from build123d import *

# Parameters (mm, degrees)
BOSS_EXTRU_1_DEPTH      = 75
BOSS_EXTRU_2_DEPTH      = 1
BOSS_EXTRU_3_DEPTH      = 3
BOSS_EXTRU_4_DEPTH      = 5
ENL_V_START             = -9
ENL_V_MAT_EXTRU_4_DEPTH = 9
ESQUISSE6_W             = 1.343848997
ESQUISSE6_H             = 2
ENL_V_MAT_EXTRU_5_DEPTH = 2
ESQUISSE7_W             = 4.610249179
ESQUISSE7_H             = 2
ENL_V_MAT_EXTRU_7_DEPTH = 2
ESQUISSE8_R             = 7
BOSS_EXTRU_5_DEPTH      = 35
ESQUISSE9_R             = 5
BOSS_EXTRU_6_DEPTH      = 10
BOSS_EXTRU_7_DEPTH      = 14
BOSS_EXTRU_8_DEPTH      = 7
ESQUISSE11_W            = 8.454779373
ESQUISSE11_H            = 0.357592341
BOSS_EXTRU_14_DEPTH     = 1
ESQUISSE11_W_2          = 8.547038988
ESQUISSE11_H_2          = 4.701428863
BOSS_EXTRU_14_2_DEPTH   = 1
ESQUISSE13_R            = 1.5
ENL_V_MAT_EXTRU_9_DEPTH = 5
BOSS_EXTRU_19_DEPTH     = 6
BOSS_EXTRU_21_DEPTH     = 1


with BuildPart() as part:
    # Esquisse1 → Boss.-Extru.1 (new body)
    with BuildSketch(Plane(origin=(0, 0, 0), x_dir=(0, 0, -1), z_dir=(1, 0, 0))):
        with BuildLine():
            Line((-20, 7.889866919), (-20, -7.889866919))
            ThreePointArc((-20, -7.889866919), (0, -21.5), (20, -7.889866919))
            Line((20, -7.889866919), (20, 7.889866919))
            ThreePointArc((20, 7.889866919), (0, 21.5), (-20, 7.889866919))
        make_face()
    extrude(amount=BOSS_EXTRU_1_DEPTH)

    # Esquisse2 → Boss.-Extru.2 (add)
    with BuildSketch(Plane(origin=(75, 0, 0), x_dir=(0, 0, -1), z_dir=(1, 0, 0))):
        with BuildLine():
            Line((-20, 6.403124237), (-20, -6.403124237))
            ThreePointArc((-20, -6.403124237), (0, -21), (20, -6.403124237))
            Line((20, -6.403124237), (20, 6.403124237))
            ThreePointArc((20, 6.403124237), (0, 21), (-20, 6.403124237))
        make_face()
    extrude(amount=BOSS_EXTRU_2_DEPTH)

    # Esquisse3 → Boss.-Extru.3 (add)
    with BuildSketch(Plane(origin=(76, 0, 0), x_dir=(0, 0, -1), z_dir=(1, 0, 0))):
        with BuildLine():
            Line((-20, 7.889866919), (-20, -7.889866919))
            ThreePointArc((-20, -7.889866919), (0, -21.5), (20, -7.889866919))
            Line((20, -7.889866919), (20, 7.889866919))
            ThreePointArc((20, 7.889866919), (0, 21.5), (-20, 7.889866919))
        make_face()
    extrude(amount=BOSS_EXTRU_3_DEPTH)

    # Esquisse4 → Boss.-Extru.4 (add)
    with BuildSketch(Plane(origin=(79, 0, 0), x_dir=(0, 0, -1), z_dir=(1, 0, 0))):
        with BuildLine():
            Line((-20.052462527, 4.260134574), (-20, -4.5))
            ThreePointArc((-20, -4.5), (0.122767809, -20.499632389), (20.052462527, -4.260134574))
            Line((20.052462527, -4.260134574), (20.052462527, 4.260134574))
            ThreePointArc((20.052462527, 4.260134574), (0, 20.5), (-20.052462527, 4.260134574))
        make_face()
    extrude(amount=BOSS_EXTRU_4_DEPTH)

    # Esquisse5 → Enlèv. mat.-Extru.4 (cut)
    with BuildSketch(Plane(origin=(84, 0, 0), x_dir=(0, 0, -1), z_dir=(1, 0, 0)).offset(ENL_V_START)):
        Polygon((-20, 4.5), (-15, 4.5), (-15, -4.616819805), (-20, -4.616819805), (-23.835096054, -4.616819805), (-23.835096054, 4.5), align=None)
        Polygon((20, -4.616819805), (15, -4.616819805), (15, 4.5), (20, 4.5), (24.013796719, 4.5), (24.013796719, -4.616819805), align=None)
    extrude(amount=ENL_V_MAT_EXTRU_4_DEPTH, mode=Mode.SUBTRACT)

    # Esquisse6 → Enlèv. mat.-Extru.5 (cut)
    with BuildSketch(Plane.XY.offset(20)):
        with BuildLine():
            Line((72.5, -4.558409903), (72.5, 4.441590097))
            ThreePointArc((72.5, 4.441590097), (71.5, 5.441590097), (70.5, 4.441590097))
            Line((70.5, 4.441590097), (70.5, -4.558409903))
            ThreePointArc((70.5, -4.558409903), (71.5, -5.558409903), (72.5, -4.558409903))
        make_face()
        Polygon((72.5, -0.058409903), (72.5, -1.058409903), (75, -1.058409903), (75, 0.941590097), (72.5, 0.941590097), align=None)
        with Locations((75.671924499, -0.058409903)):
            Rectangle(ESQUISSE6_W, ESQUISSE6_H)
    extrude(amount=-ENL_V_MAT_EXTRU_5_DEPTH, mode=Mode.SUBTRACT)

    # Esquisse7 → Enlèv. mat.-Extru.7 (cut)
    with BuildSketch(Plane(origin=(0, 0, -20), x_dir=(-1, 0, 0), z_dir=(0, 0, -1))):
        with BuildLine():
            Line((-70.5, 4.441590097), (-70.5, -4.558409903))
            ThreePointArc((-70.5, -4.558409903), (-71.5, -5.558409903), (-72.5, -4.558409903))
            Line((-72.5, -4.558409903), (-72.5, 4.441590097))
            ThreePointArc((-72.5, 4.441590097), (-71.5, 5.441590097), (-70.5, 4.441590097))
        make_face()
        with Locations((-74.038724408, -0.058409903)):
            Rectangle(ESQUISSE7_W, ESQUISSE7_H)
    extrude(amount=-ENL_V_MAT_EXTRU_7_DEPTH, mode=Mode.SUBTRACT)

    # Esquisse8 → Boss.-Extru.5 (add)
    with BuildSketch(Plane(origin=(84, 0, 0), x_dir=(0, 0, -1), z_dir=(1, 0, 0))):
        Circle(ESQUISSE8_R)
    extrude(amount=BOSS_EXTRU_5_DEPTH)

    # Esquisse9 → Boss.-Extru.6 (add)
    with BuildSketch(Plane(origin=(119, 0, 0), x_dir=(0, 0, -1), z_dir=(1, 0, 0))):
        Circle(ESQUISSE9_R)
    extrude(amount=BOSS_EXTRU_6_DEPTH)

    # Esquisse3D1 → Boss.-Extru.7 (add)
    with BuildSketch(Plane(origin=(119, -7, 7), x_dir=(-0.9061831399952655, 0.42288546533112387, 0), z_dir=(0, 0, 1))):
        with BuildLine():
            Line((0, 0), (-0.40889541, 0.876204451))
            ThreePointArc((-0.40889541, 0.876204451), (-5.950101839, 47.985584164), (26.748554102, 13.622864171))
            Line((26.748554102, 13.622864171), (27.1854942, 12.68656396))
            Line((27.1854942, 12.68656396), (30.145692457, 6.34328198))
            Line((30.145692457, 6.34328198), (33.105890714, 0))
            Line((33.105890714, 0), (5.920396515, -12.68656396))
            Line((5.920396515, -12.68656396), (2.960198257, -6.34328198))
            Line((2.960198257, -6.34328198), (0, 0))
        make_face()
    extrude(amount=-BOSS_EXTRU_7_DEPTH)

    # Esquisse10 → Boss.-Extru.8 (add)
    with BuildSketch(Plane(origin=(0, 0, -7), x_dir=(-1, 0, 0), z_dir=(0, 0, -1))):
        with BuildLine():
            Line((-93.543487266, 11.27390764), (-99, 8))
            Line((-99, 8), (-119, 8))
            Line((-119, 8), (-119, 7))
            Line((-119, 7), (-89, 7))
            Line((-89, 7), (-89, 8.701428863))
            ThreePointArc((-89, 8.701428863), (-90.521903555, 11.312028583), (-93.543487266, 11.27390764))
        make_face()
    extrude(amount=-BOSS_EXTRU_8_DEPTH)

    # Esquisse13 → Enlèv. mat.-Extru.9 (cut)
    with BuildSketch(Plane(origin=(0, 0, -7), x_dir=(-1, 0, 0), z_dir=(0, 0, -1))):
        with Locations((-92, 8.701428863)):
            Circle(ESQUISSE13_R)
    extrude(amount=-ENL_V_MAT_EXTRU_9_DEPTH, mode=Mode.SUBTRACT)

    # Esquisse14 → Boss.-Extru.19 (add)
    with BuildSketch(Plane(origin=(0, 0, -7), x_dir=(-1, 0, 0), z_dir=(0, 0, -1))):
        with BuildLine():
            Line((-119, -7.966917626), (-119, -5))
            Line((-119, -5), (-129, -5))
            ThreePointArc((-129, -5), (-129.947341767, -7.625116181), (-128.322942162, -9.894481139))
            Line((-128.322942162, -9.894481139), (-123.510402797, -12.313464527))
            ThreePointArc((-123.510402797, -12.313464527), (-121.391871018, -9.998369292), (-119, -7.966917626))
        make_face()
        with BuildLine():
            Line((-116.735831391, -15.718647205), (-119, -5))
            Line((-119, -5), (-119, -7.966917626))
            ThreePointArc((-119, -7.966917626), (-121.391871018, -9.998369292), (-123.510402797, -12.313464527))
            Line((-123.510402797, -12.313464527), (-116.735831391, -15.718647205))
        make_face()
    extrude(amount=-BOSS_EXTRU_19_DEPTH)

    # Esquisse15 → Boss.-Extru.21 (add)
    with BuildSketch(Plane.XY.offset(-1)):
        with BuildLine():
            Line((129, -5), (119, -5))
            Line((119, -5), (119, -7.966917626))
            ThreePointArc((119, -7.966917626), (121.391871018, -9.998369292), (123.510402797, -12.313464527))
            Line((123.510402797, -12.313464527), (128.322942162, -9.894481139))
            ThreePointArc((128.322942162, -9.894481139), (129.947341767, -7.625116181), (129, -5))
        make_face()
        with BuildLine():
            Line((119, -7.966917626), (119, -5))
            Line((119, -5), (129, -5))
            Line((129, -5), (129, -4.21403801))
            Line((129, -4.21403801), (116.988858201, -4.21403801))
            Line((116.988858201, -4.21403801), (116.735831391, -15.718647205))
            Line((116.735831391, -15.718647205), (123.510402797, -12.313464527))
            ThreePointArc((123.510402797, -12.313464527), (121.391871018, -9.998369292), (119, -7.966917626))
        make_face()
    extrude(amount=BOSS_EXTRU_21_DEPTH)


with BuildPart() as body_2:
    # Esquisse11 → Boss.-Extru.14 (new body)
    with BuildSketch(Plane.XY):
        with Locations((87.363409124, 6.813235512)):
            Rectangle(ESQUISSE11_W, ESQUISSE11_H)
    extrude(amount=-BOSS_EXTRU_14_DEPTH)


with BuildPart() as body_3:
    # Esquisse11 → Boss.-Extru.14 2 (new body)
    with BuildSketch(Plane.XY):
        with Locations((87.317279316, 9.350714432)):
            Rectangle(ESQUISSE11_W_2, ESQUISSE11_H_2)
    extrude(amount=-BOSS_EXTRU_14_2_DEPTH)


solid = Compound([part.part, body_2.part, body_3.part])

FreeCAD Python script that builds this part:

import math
import FreeCAD as App
import Part
import Sketcher
Q = App.Units.Quantity


def add_polygon(sketch, points):
    """Adds a closed chain of lines whose ends are joined by coincident constraints."""
    first, n = sketch.GeometryCount, len(points)
    for a, b in zip(points, points[1:] + points[:1]):
        sketch.addGeometry(Part.LineSegment(App.Vector(*a, 0), App.Vector(*b, 0)), False)
    for i in range(n):
        sketch.addConstraint(Sketcher.Constraint("Coincident", first + i, 2, first + (i + 1) % n, 1))

doc = App.newDocument("Part")
body = doc.addObject("PartDesign::Body", "Body")

sketch1 = doc.addObject("Sketcher::SketchObject", "Sketch")
body.addObject(sketch1)
sketch1.AttachmentSupport = (doc.YZ_Plane, [""])
sketch1.MapMode = "FlatFace"
sketch1.addGeometry(Part.LineSegment(App.Vector(8, 20, 0), App.Vector(-8, 20, 0)), False)
sketch1.addGeometry(Part.ArcOfCircle(Part.Circle(App.Vector(0, 0, 0), App.Vector(0, 0, 1), 22), math.radians(112), math.radians(248)), False)
sketch1.addGeometry(Part.LineSegment(App.Vector(-8, -20, 0), App.Vector(8, -20, 0)), False)
sketch1.addGeometry(Part.ArcOfCircle(Part.Circle(App.Vector(0, 0, 0), App.Vector(0, 0, 1), 22), math.radians(-68), math.radians(68)), False)
sketch1.addConstraint(Sketcher.Constraint("Coincident", 0, 2, 1, 1))
sketch1.addConstraint(Sketcher.Constraint("Coincident", 1, 2, 2, 1))
sketch1.addConstraint(Sketcher.Constraint("Coincident", 2, 2, 3, 1))
sketch1.addConstraint(Sketcher.Constraint("Coincident", 3, 2, 0, 1))
sketch1.addConstraint(Sketcher.Constraint("Horizontal", 0))
sketch1.addConstraint(Sketcher.Constraint("Horizontal", 2))
sketch1.addConstraint(Sketcher.Constraint("Coincident", 1, 3, -1, 1))
sketch1.addConstraint(Sketcher.Constraint("Coincident", 3, 3, -1, 1))
sketch1.addConstraint(Sketcher.Constraint("Equal", 1, 3))
sketch1.addConstraint(Sketcher.Constraint("Vertical", 0, 2, 1, 2))
sketch1.addConstraint(Sketcher.Constraint("Radius", 1, Q("21.5 mm")))
sketch1.addConstraint(Sketcher.Constraint("DistanceY", -1, 1, 0, 2, Q("20 mm")))
pad1 = doc.addObject("PartDesign::Pad", "Pad")
body.addObject(pad1)
pad1.Profile = sketch1
pad1.Length = 75

sketch2 = doc.addObject("Sketcher::SketchObject", "Sketch001")
body.addObject(sketch2)
sketch2.AttachmentSupport = (doc.YZ_Plane, [""])
sketch2.MapMode = "FlatFace"
sketch2.AttachmentOffset = App.Placement(App.Vector(0, 0, 75), App.Rotation())
sketch2.addGeometry(Part.LineSegment(App.Vector(6, 20, 0), App.Vector(-6, 20, 0)), False)
sketch2.addGeometry(Part.ArcOfCircle(Part.Circle(App.Vector(0, 0, 0), App.Vector(0, 0, 1), 21), math.radians(108), math.radians(252)), False)
sketch2.addGeometry(Part.LineSegment(App.Vector(-6, -20, 0), App.Vector(6, -20, 0)), False)
sketch2.addGeometry(Part.ArcOfCircle(Part.Circle(App.Vector(0, 0, 0), App.Vector(0, 0, 1), 21), math.radians(-72), math.radians(72)), False)
sketch2.addConstraint(Sketcher.Constraint("Coincident", 0, 2, 1, 1))
sketch2.addConstraint(Sketcher.Constraint("Coincident", 1, 2, 2, 1))
sketch2.addConstraint(Sketcher.Constraint("Coincident", 2, 2, 3, 1))
sketch2.addConstraint(Sketcher.Constraint("Coincident", 3, 2, 0, 1))
sketch2.addConstraint(Sketcher.Constraint("Horizontal", 0))
sketch2.addConstraint(Sketcher.Constraint("Horizontal", 2))
sketch2.addConstraint(Sketcher.Constraint("Coincident", 1, 3, -1, 1))
sketch2.addConstraint(Sketcher.Constraint("Coincident", 3, 3, -1, 1))
sketch2.addConstraint(Sketcher.Constraint("Equal", 1, 3))
sketch2.addConstraint(Sketcher.Constraint("Vertical", 0, 2, 1, 2))
sketch2.addConstraint(Sketcher.Constraint("Radius", 1, Q("21 mm")))
sketch2.addConstraint(Sketcher.Constraint("DistanceY", -1, 1, 0, 2, Q("20 mm")))
pad2 = doc.addObject("PartDesign::Pad", "Pad001")
body.addObject(pad2)
pad2.Profile = sketch2
pad2.Length = 1

sketch3 = doc.addObject("Sketcher::SketchObject", "Sketch002")
body.addObject(sketch3)
sketch3.AttachmentSupport = (doc.YZ_Plane, [""])
sketch3.MapMode = "FlatFace"
sketch3.AttachmentOffset = App.Placement(App.Vector(0, 0, 76), App.Rotation())
sketch3.addGeometry(Part.LineSegment(App.Vector(8, 20, 0), App.Vector(-8, 20, 0)), False)
sketch3.addGeometry(Part.ArcOfCircle(Part.Circle(App.Vector(0, 0, 0), App.Vector(0, 0, 1), 22), math.radians(112), math.radians(248)), False)
sketch3.addGeometry(Part.LineSegment(App.Vector(-8, -20, 0), App.Vector(8, -20, 0)), False)
sketch3.addGeometry(Part.ArcOfCircle(Part.Circle(App.Vector(0, 0, 0), App.Vector(0, 0, 1), 22), math.radians(-68), math.radians(68)), False)
sketch3.addConstraint(Sketcher.Constraint("Coincident", 0, 2, 1, 1))
sketch3.addConstraint(Sketcher.Constraint("Coincident", 1, 2, 2, 1))
sketch3.addConstraint(Sketcher.Constraint("Coincident", 2, 2, 3, 1))
sketch3.addConstraint(Sketcher.Constraint("Coincident", 3, 2, 0, 1))
sketch3.addConstraint(Sketcher.Constraint("Horizontal", 0))
sketch3.addConstraint(Sketcher.Constraint("Horizontal", 2))
sketch3.addConstraint(Sketcher.Constraint("Coincident", 1, 3, -1, 1))
sketch3.addConstraint(Sketcher.Constraint("Coincident", 3, 3, -1, 1))
sketch3.addConstraint(Sketcher.Constraint("Equal", 1, 3))
sketch3.addConstraint(Sketcher.Constraint("Vertical", 0, 2, 1, 2))
sketch3.addConstraint(Sketcher.Constraint("Radius", 1, Q("21.5 mm")))
sketch3.addConstraint(Sketcher.Constraint("DistanceY", -1, 1, 0, 2, Q("20 mm")))
pad3 = doc.addObject("PartDesign::Pad", "Pad002")
body.addObject(pad3)
pad3.Profile = sketch3
pad3.Length = 3

sketch4 = doc.addObject("Sketcher::SketchObject", "Sketch003")
body.addObject(sketch4)
sketch4.AttachmentSupport = (doc.YZ_Plane, [""])
sketch4.MapMode = "FlatFace"
sketch4.AttachmentOffset = App.Placement(App.Vector(0, 0, 79), App.Rotation())
sketch4.addGeometry(Part.LineSegment(App.Vector(4, 20, 0), App.Vector(-4, 20, 0)), False)
sketch4.addGeometry(Part.ArcOfCircle(Part.Circle(App.Vector(0, 0, 0), App.Vector(0, 0, 1), 20), math.radians(103), math.radians(258)), False)
sketch4.addGeometry(Part.LineSegment(App.Vector(-4, -20, 0), App.Vector(4, -20, 0)), False)
sketch4.addGeometry(Part.ArcOfCircle(Part.Circle(App.Vector(0, 0, 0), App.Vector(0, 0, 1), 20), math.radians(-78), math.radians(78)), False)
sketch4.addConstraint(Sketcher.Constraint("Coincident", 0, 2, 1, 1))
sketch4.addConstraint(Sketcher.Constraint("Coincident", 1, 2, 2, 1))
sketch4.addConstraint(Sketcher.Constraint("Coincident", 2, 2, 3, 1))
sketch4.addConstraint(Sketcher.Constraint("Coincident", 3, 2, 0, 1))
sketch4.addConstraint(Sketcher.Constraint("Horizontal", 2))
sketch4.addConstraint(Sketcher.Constraint("Coincident", 1, 3, -1, 1))
sketch4.addConstraint(Sketcher.Constraint("Coincident", 3, 3, -1, 1))
sketch4.addConstraint(Sketcher.Constraint("Equal", 1, 3))
sketch4.addConstraint(Sketcher.Constraint("Vertical", 2, 2, 3, 2))
sketch4.addConstraint(Sketcher.Constraint("Radius", 1, Q("20.5 mm")))
sketch4.addConstraint(Sketcher.Constraint("DistanceY", -1, 1, 0, 2, Q("20 mm")))
sketch4.addConstraint(Sketcher.Constraint("DistanceX", 2, 1, 2, 2, Q("8.520269 mm")))
pad4 = doc.addObject("PartDesign::Pad", "Pad003")
body.addObject(pad4)
pad4.Profile = sketch4
pad4.Length = 5

sketch5 = doc.addObject("Sketcher::SketchObject", "Sketch004")
body.addObject(sketch5)
sketch5.AttachmentSupport = (doc.YZ_Plane, [""])
sketch5.MapMode = "FlatFace"
sketch5.AttachmentOffset = App.Placement(App.Vector(0, 0, 75), App.Rotation())
add_polygon(sketch5, [(4, 15), (4, 24), (-5, 24), (-5, 15)])
add_polygon(sketch5, [(-5, -15), (-5, -24), (4, -24), (4, -15)])
sketch5.addConstraint(Sketcher.Constraint("Vertical", 0))
sketch5.addConstraint(Sketcher.Constraint("Horizontal", 1))
sketch5.addConstraint(Sketcher.Constraint("Vertical", 2))
sketch5.addConstraint(Sketcher.Constraint("Horizontal", 3))
sketch5.addConstraint(Sketcher.Constraint("Vertical", 4))
sketch5.addConstraint(Sketcher.Constraint("Horizontal", 5))
sketch5.addConstraint(Sketcher.Constraint("Vertical", 6))
sketch5.addConstraint(Sketcher.Constraint("Horizontal", 7))
sketch5.addConstraint(Sketcher.Constraint("Symmetric", 3, 2, 6, 2, -1))
sketch5.addConstraint(Sketcher.Constraint("Vertical", 2, 2, 4, 2))
sketch5.addConstraint(Sketcher.Constraint("DistanceY", -1, 1, 2, 2, Q("15 mm")))
sketch5.addConstraint(Sketcher.Constraint("DistanceX", -1, 1, 0, 2, Q("4.5 mm")))
sketch5.addConstraint(Sketcher.Constraint("DistanceX", 1, 2, 1, 1, Q("9.11682 mm")))
sketch5.addConstraint(Sketcher.Constraint("DistanceY", 0, 1, 0, 2, Q("8.835096 mm")))
sketch5.addConstraint(Sketcher.Constraint("DistanceY", 4, 2, 4, 1, Q("9.013797 mm")))
pocket1 = doc.addObject("PartDesign::Pocket", "Pocket")
body.addObject(pocket1)
pocket1.Profile = sketch5
pocket1.Length = 9
pocket1.Reversed = True

sketch6 = doc.addObject("Sketcher::SketchObject", "Sketch005")
body.addObject(sketch6)
sketch6.AttachmentSupport = (doc.XY_Plane, [""])
sketch6.MapMode = "FlatFace"
sketch6.AttachmentOffset = App.Placement(App.Vector(0, 0, 20), App.Rotation())
sketch6.addGeometry(Part.LineSegment(App.Vector(72.5, -4.6, 0), App.Vector(72.5, -1.1, 0)), False)
sketch6.addGeometry(Part.LineSegment(App.Vector(72.5, -1.1, 0), App.Vector(76.3, -1.1, 0)), False)
sketch6.addGeometry(Part.LineSegment(App.Vector(76.3, -1.1, 0), App.Vector(76.3, 0.9, 0)), False)
sketch6.addGeometry(Part.LineSegment(App.Vector(76.3, 0.9, 0), App.Vector(72.5, 0.9, 0)), False)
sketch6.addGeometry(Part.LineSegment(App.Vector(72.5, 0.9, 0), App.Vector(72.5, 4.4, 0)), False)
sketch6.addGeometry(Part.ArcOfCircle(Part.Circle(App.Vector(71.5, 4.4, 0), App.Vector(0, 0, 1), 1), math.radians(0), math.radians(180)), False)
sketch6.addGeometry(Part.LineSegment(App.Vector(70.5, 4.4, 0), App.Vector(70.5, -4.6, 0)), False)
sketch6.addGeometry(Part.ArcOfCircle(Part.Circle(App.Vector(71.5, -4.6, 0), App.Vector(0, 0, 1), 1), math.radians(180), math.radians(360)), False)
sketch6.addConstraint(Sketcher.Constraint("Coincident", 0, 2, 1, 1))
sketch6.addConstraint(Sketcher.Constraint("Coincident", 1, 2, 2, 1))
sketch6.addConstraint(Sketcher.Constraint("Coincident", 2, 2, 3, 1))
sketch6.addConstraint(Sketcher.Constraint("Coincident", 3, 2, 4, 1))
sketch6.addConstraint(Sketcher.Constraint("Tangent", 4, 2, 5, 1))
sketch6.addConstraint(Sketcher.Constraint("Tangent", 5, 2, 6, 1))
sketch6.addConstraint(Sketcher.Constraint("Tangent", 6, 2, 7, 1))
sketch6.addConstraint(Sketcher.Constraint("Tangent", 7, 2, 0, 1))
sketch6.addConstraint(Sketcher.Constraint("Vertical", 0))
sketch6.addConstraint(Sketcher.Constraint("Horizontal", 1))
sketch6.addConstraint(Sketcher.Constraint("Vertical", 2))
sketch6.addConstraint(Sketcher.Constraint("Horizontal", 3))
sketch6.addConstraint(Sketcher.Constraint("Vertical", 4))
sketch6.addConstraint(Sketcher.Constraint("Vertical", 6))
sketch6.addConstraint(Sketcher.Constraint("Equal", 5, 7))
sketch6.addConstraint(Sketcher.Constraint("Equal", 0, 4))
sketch6.addConstraint(Sketcher.Constraint("Radius", 5, Q("1 mm")))
sketch6.addConstraint(Sketcher.Constraint("DistanceY", 2, 1, 2, 2, Q("2 mm")))
sketch6.addConstraint(Sketcher.Constraint("DistanceY", 6, 2, 6, 1, Q("9 mm")))
sketch6.addConstraint(Sketcher.Constraint("DistanceX", -1, 1, 5, 3, Q("71.5 mm")))
sketch6.addConstraint(Sketcher.Constraint("DistanceX", 1, 1, 1, 2, Q("3.843849 mm")))
sketch6.addConstraint(Sketcher.Constraint("DistanceY", -1, 1, 5, 3, Q("4.44159 mm")))
pocket2 = doc.addObject("PartDesign::Pocket", "Pocket001")
body.addObject(pocket2)
pocket2.Profile = sketch6
pocket2.Length = 2

sketch7 = doc.addObject("Sketcher::SketchObject", "Sketch006")
body.addObject(sketch7)
sketch7.AttachmentSupport = (doc.XY_Plane, [""])
sketch7.MapMode = "FlatFace"
sketch7.AttachmentOffset = App.Placement(App.Vector(0, 0, -20), App.Rotation())
sketch7.addGeometry(Part.ArcOfCircle(Part.Circle(App.Vector(71.5, 4.4, 0), App.Vector(0, 0, 1), 1), math.radians(0), math.radians(180)), False)
sketch7.addGeometry(Part.LineSegment(App.Vector(72.5, 4.4, 0), App.Vector(72.5, 0.9, 0)), False)
sketch7.addGeometry(Part.LineSegment(App.Vector(72.5, 0.9, 0), App.Vector(76.3, 0.9, 0)), False)
sketch7.addGeometry(Part.LineSegment(App.Vector(76.3, 0.9, 0), App.Vector(76.3, -1.1, 0)), False)
sketch7.addGeometry(Part.LineSegment(App.Vector(76.3, -1.1, 0), App.Vector(72.5, -1.1, 0)), False)
sketch7.addGeometry(Part.LineSegment(App.Vector(72.5, -1.1, 0), App.Vector(72.5, -4.6, 0)), False)
sketch7.addGeometry(Part.ArcOfCircle(Part.Circle(App.Vector(71.5, -4.6, 0), App.Vector(0, 0, 1), 1), math.radians(180), math.radians(360)), False)
sketch7.addGeometry(Part.LineSegment(App.Vector(70.5, -4.6, 0), App.Vector(70.5, 4.4, 0)), False)
sketch7.addConstraint(Sketcher.Constraint("Tangent", 0, 1, 1, 1))
sketch7.addConstraint(Sketcher.Constraint("Coincident", 1, 2, 2, 1))
sketch7.addConstraint(Sketcher.Constraint("Coincident", 2, 2, 3, 1))
sketch7.addConstraint(Sketcher.Constraint("Coincident", 3, 2, 4, 1))
sketch7.addConstraint(Sketcher.Constraint("Coincident", 4, 2, 5, 1))
sketch7.addConstraint(Sketcher.Constraint("Tangent", 5, 2, 6, 2))
sketch7.addConstraint(Sketcher.Constraint("Tangent", 6, 1, 7, 1))
sketch7.addConstraint(Sketcher.Constraint("Tangent", 7, 2, 0, 2))
sketch7.addConstraint(Sketcher.Constraint("Vertical", 1))
sketch7.addConstraint(Sketcher.Constraint("Horizontal", 2))
sketch7.addConstraint(Sketcher.Constraint("Vertical", 3))
sketch7.addConstraint(Sketcher.Constraint("Horizontal", 4))
sketch7.addConstraint(Sketcher.Constraint("Vertical", 5))
sketch7.addConstraint(Sketcher.Constraint("Vertical", 7))
sketch7.addConstraint(Sketcher.Constraint("Equal", 0, 6))
sketch7.addConstraint(Sketcher.Constraint("Equal", 1, 5))
sketch7.addConstraint(Sketcher.Constraint("Radius", 0, Q("1 mm")))
sketch7.addConstraint(Sketcher.Constraint("DistanceY", 3, 2, 3, 1, Q("2 mm")))
sketch7.addConstraint(Sketcher.Constraint("DistanceY", 7, 1, 7, 2, Q("9 mm")))
sketch7.addConstraint(Sketcher.Constraint("DistanceX", -1, 1, 0, 3, Q("71.5 mm")))
sketch7.addConstraint(Sketcher.Constraint("DistanceX", 2, 1, 2, 2, Q("3.843849 mm")))
sketch7.addConstraint(Sketcher.Constraint("DistanceY", -1, 1, 0, 3, Q("4.44159 mm")))
pocket3 = doc.addObject("PartDesign::Pocket", "Pocket002")
body.addObject(pocket3)
pocket3.Profile = sketch7
pocket3.Length = 2
pocket3.Reversed = True

sketch8 = doc.addObject("Sketcher::SketchObject", "Sketch007")
body.addObject(sketch8)
sketch8.AttachmentSupport = (doc.YZ_Plane, [""])
sketch8.MapMode = "FlatFace"
sketch8.AttachmentOffset = App.Placement(App.Vector(0, 0, 84), App.Rotation())
sketch8.addGeometry(Part.Circle(App.Vector(0, 0, 0), App.Vector(0, 0, 1), 7), False)
sketch8.addConstraint(Sketcher.Constraint("Coincident", 0, 3, -1, 1))
sketch8.addConstraint(Sketcher.Constraint("Diameter", 0, Q("14 mm")))
pad5 = doc.addObject("PartDesign::Pad", "Pad004")
body.addObject(pad5)
pad5.Profile = sketch8
pad5.Length = 35

sketch9 = doc.addObject("Sketcher::SketchObject", "Sketch008")
body.addObject(sketch9)
sketch9.AttachmentSupport = (doc.YZ_Plane, [""])
sketch9.MapMode = "FlatFace"
sketch9.AttachmentOffset = App.Placement(App.Vector(0, 0, 119), App.Rotation())
sketch9.addGeometry(Part.Circle(App.Vector(0, 0, 0), App.Vector(0, 0, 1), 5), False)
sketch9.addConstraint(Sketcher.Constraint("Coincident", 0, 3, -1, 1))
sketch9.addConstraint(Sketcher.Constraint("Diameter", 0, Q("10 mm")))
pad6 = doc.addObject("PartDesign::Pad", "Pad005")
body.addObject(pad6)
pad6.Profile = sketch9
pad6.Length = 10

sketch10 = doc.addObject("Sketcher::SketchObject", "Sketch009")
body.addObject(sketch10)
sketch10.AttachmentSupport = (doc.XY_Plane, [""])
sketch10.MapMode = "FlatFace"
sketch10.AttachmentOffset = App.Placement(App.Vector(0, 0, 7), App.Rotation())
sketch10.addGeometry(Part.LineSegment(App.Vector(119, -8, 0), App.Vector(119, -7, 0)), False)
sketch10.addGeometry(Part.LineSegment(App.Vector(119, -7, 0), App.Vector(119, 0, 0)), False)
sketch10.addGeometry(Part.LineSegment(App.Vector(119, 0, 0), App.Vector(119, 7, 0)), False)
sketch10.addGeometry(Part.LineSegment(App.Vector(119, 7, 0), App.Vector(89, 7, 0)), False)
sketch10.addGeometry(Part.LineSegment(App.Vector(89, 7, 0), App.Vector(89, -7, 0)), False)
sketch10.addGeometry(Part.LineSegment(App.Vector(89, -7, 0), App.Vector(89, -8, 0)), False)
sketch10.addGeometry(Part.ArcOfCircle(Part.Circle(App.Vector(104, -28, 0), App.Vector(0, 0, 1), 25), math.radians(127), math.radians(413)), False)
sketch10.addConstraint(Sketcher.Constraint("Coincident", 0, 2, 1, 1))
sketch10.addConstraint(Sketcher.Constraint("Coincident", 1, 2, 2, 1))
sketch10.addConstraint(Sketcher.Constraint("Coincident", 2, 2, 3, 1))
sketch10.addConstraint(Sketcher.Constraint("Coincident", 3, 2, 4, 1))
sketch10.addConstraint(Sketcher.Constraint("Coincident", 4, 2, 5, 1))
sketch10.addConstraint(Sketcher.Constraint("Coincident", 5, 2, 6, 1))
sketch10.addConstraint(Sketcher.Constraint("Coincident", 6, 2, 0, 1))
sketch10.addConstraint(Sketcher.Constraint("Vertical", 0))
sketch10.addConstraint(Sketcher.Constraint("Vertical", 1))
sketch10.addConstraint(Sketcher.Constraint("Vertical", 2))
sketch10.addConstraint(Sketcher.Constraint("Horizontal", 3))
sketch10.addConstraint(Sketcher.Constraint("Vertical", 4))
sketch10.addConstraint(Sketcher.Constraint("Vertical", 5))
sketch10.addConstraint(Sketcher.Constraint("PointOnObject", 1, 2, -1))
sketch10.addConstraint(Sketcher.Constraint("Horizontal", 0, 2, 4, 2))
sketch10.addConstraint(Sketcher.Constraint("Equal", 1, 2))
sketch10.addConstraint(Sketcher.Constraint("Radius", 6, Q("25 mm")))
sketch10.addConstraint(Sketcher.Constraint("DistanceX", 3, 2, 3, 1, Q("30 mm")))
sketch10.addConstraint(Sketcher.Constraint("DistanceY", 1, 1, 1, 2, Q("7 mm")))
sketch10.addConstraint(Sketcher.Constraint("DistanceY", 6, 3, -1, 1, Q("28 mm")))
sketch10.addConstraint(Sketcher.Constraint("DistanceX", -1, 1, 0, 2, Q("119 mm")))
sketch10.addConstraint(Sketcher.Constraint("DistanceY", 0, 1, 0, 2, Q("0.966918 mm")))
pad7 = doc.addObject("PartDesign::Pad", "Pad006")
body.addObject(pad7)
pad7.Profile = sketch10
pad7.Length = 14
pad7.Reversed = True

sketch11 = doc.addObject("Sketcher::SketchObject", "Sketch010")
body.addObject(sketch11)
sketch11.AttachmentSupport = (doc.XY_Plane, [""])
sketch11.MapMode = "FlatFace"
sketch11.AttachmentOffset = App.Placement(App.Vector(0, 0, -7), App.Rotation())
sketch11.addGeometry(Part.LineSegment(App.Vector(93.5, 11.3, 0), App.Vector(99, 8, 0)), False)
sketch11.addGeometry(Part.LineSegment(App.Vector(99, 8, 0), App.Vector(119, 8, 0)), False)
sketch11.addGeometry(Part.LineSegment(App.Vector(119, 8, 0), App.Vector(119, 7, 0)), False)
sketch11.addGeometry(Part.LineSegment(App.Vector(119, 7, 0), App.Vector(89, 7, 0)), False)
sketch11.addGeometry(Part.LineSegment(App.Vector(89, 7, 0), App.Vector(89, 8.7, 0)), False)
sketch11.addGeometry(Part.ArcOfCircle(Part.Circle(App.Vector(92, 8.7, 0), App.Vector(0, 0, 1), 3), math.radians(59), math.radians(180)), False)
sketch11.addConstraint(Sketcher.Constraint("Coincident", 0, 2, 1, 1))
sketch11.addConstraint(Sketcher.Constraint("Coincident", 1, 2, 2, 1))
sketch11.addConstraint(Sketcher.Constraint("Coincident", 2, 2, 3, 1))
sketch11.addConstraint(Sketcher.Constraint("Coincident", 3, 2, 4, 1))
sketch11.addConstraint(Sketcher.Constraint("Tangent", 4, 2, 5, 2))
sketch11.addConstraint(Sketcher.Constraint("Tangent", 5, 1, 0, 1))
sketch11.addConstraint(Sketcher.Constraint("Horizontal", 1))
sketch11.addConstraint(Sketcher.Constraint("Vertical", 2))
sketch11.addConstraint(Sketcher.Constraint("Horizontal", 3))
sketch11.addConstraint(Sketcher.Constraint("Vertical", 4))
sketch11.addConstraint(Sketcher.Constraint("Radius", 5, Q("3 mm")))
sketch11.addConstraint(Sketcher.Constraint("DistanceX", 1, 1, 1, 2, Q("20 mm")))
sketch11.addConstraint(Sketcher.Constraint("DistanceX", 3, 2, 3, 1, Q("30 mm")))
sketch11.addConstraint(Sketcher.Constraint("DistanceY", 2, 2, 2, 1, Q("1 mm")))
sketch11.addConstraint(Sketcher.Constraint("DistanceX", -1, 1, 5, 3, Q("92 mm")))
sketch11.addConstraint(Sketcher.Constraint("DistanceY", -1, 1, 0, 2, Q("8 mm")))
sketch11.addConstraint(Sketcher.Constraint("DistanceY", 4, 1, 4, 2, Q("1.701429 mm")))
pad8 = doc.addObject("PartDesign::Pad", "Pad007")
body.addObject(pad8)
pad8.Profile = sketch11
pad8.Length = 7

sketch12 = doc.addObject("Sketcher::SketchObject", "Sketch011")
body.addObject(sketch12)
sketch12.AttachmentSupport = (doc.XY_Plane, [""])
sketch12.MapMode = "FlatFace"
sketch12.AttachmentOffset = App.Placement(App.Vector(0, 0, -7), App.Rotation())
sketch12.addGeometry(Part.Circle(App.Vector(92, 8.7, 0), App.Vector(0, 0, 1), 1.5), False)
sketch12.addConstraint(Sketcher.Constraint("Diameter", 0, Q("3 mm")))
sketch12.addConstraint(Sketcher.Constraint("DistanceX", -1, 1, 0, 3, Q("92 mm")))
sketch12.addConstraint(Sketcher.Constraint("DistanceY", -1, 1, 0, 3, Q("8.701429 mm")))
pocket4 = doc.addObject("PartDesign::Pocket", "Pocket003")
body.addObject(pocket4)
pocket4.Profile = sketch12
pocket4.Length = 5
pocket4.Reversed = True

sketch13 = doc.addObject("Sketcher::SketchObject", "Sketch012")
body.addObject(sketch13)
sketch13.AttachmentSupport = (doc.XY_Plane, [""])
sketch13.MapMode = "FlatFace"
sketch13.AttachmentOffset = App.Placement(App.Vector(0, 0, -7), App.Rotation())
sketch13.addGeometry(Part.LineSegment(App.Vector(119, -5, 0), App.Vector(129, -5, 0)), False)
sketch13.addGeometry(Part.ArcOfCircle(Part.Circle(App.Vector(127, -7.2, 0), App.Vector(0, 0, 1), 3), math.radians(-63), math.radians(48)), False)
sketch13.addGeometry(Part.LineSegment(App.Vector(128.3, -9.9, 0), App.Vector(123.5, -12.3, 0)), False)
sketch13.addGeometry(Part.LineSegment(App.Vector(123.5, -12.3, 0), App.Vector(116.7, -15.7, 0)), False)
sketch13.addGeometry(Part.LineSegment(App.Vector(116.7, -15.7, 0), App.Vector(119, -5, 0)), False)
sketch13.addConstraint(Sketcher.Constraint("Coincident", 0, 2, 1, 2))
sketch13.addConstraint(Sketcher.Constraint("Tangent", 1, 1, 2, 1))
sketch13.addConstraint(Sketcher.Constraint("Coincident", 2, 2, 3, 1))
sketch13.addConstraint(Sketcher.Constraint("Coincident", 3, 2, 4, 1))
sketch13.addConstraint(Sketcher.Constraint("Coincident", 4, 2, 0, 1))
sketch13.addConstraint(Sketcher.Constraint("Horizontal", 0))
sketch13.addConstraint(Sketcher.Constraint("Parallel", 2, 3))
sketch13.addConstraint(Sketcher.Constraint("Radius", 1, Q("3 mm")))
sketch13.addConstraint(Sketcher.Constraint("DistanceX", 0, 1, 0, 2, Q("10 mm")))
sketch13.addConstraint(Sketcher.Constraint("DistanceX", -1, 1, 0, 2, Q("129 mm")))
sketch13.addConstraint(Sketcher.Constraint("DistanceY", 0, 2, -1, 1, Q("5 mm")))
sketch13.addConstraint(Sketcher.Constraint("Distance", 2, Q("5.38628 mm")))
sketch13.addConstraint(Sketcher.Constraint("Distance", 3, Q("7.582222 mm")))
sketch13.addConstraint(Sketcher.Constraint("DistanceX", -1, 1, 1, 3, Q("126.975639 mm")))
sketch13.addConstraint(Sketcher.Constraint("DistanceY", 1, 1, -1, 1, Q("9.894481 mm")))
pad9 = doc.addObject("PartDesign::Pad", "Pad008")
body.addObject(pad9)
pad9.Profile = sketch13
pad9.Length = 6

sketch14 = doc.addObject("Sketcher::SketchObject", "Sketch013")
body.addObject(sketch14)
sketch14.AttachmentSupport = (doc.XY_Plane, [""])
sketch14.MapMode = "FlatFace"
sketch14.AttachmentOffset = App.Placement(App.Vector(0, 0, -1), App.Rotation())
sketch14.addGeometry(Part.LineSegment(App.Vector(123.5, -12.3, 0), App.Vector(128.3, -9.9, 0)), False)
sketch14.addGeometry(Part.ArcOfCircle(Part.Circle(App.Vector(127, -7.2, 0), App.Vector(0, 0, 1), 3), math.radians(-63), math.radians(48)), False)
sketch14.addGeometry(Part.LineSegment(App.Vector(129, -5, 0), App.Vector(129, -4.2, 0)), False)
sketch14.addGeometry(Part.LineSegment(App.Vector(129, -4.2, 0), App.Vector(117, -4.2, 0)), False)
sketch14.addGeometry(Part.LineSegment(App.Vector(117, -4.2, 0), App.Vector(116.7, -15.7, 0)), False)
sketch14.addGeometry(Part.LineSegment(App.Vector(116.7, -15.7, 0), App.Vector(123.5, -12.3, 0)), False)
sketch14.addConstraint(Sketcher.Constraint("Tangent", 0, 2, 1, 1))
sketch14.addConstraint(Sketcher.Constraint("Coincident", 1, 2, 2, 1))
sketch14.addConstraint(Sketcher.Constraint("Coincident", 2, 2, 3, 1))
sketch14.addConstraint(Sketcher.Constraint("Coincident", 3, 2, 4, 1))
sketch14.addConstraint(Sketcher.Constraint("Coincident", 4, 2, 5, 1))
sketch14.addConstraint(Sketcher.Constraint("Coincident", 5, 2, 0, 1))
sketch14.addConstraint(Sketcher.Constraint("Vertical", 2))
sketch14.addConstraint(Sketcher.Constraint("Horizontal", 3))
sketch14.addConstraint(Sketcher.Constraint("Parallel", 0, 5))
sketch14.addConstraint(Sketcher.Constraint("Radius", 1, Q("3 mm")))
sketch14.addConstraint(Sketcher.Constraint("DistanceX", -1, 1, 1, 2, Q("129 mm")))
sketch14.addConstraint(Sketcher.Constraint("DistanceY", 1, 2, -1, 1, Q("5 mm")))
sketch14.addConstraint(Sketcher.Constraint("DistanceY", 1, 3, 2, 2, Q("3 mm")))
sketch14.addConstraint(Sketcher.Constraint("DistanceX", 3, 2, 3, 1, Q("12.011142 mm")))
sketch14.addConstraint(Sketcher.Constraint("DistanceY", 2, 1, 2, 2, Q("0.785962 mm")))
sketch14.addConstraint(Sketcher.Constraint("Distance", 0, Q("5.38628 mm")))
sketch14.addConstraint(Sketcher.Constraint("Distance", 4, Q("11.507391 mm")))
sketch14.addConstraint(Sketcher.Constraint("Distance", 5, Q("7.582222 mm")))
pad10 = doc.addObject("PartDesign::Pad", "Pad009")
body.addObject(pad10)
pad10.Profile = sketch14
pad10.Length = 1
body2 = doc.addObject("PartDesign::Body", "Body001")

sketch15 = doc.addObject("Sketcher::SketchObject", "Sketch014")
body2.addObject(sketch15)
sketch15.AttachmentSupport = (doc.getObject("XY_Plane001"), [""])
sketch15.MapMode = "FlatFace"
add_polygon(sketch15, [(83.14, 6.99), (83.14, 6.63), (91.59, 6.63), (91.59, 6.99)])
sketch15.addConstraint(Sketcher.Constraint("Vertical", 0))
sketch15.addConstraint(Sketcher.Constraint("Horizontal", 1))
sketch15.addConstraint(Sketcher.Constraint("Vertical", 2))
sketch15.addConstraint(Sketcher.Constraint("Horizontal", 3))
sketch15.addConstraint(Sketcher.Constraint("DistanceX", 1, 1, 1, 2, Q("8.454779 mm")))
sketch15.addConstraint(Sketcher.Constraint("DistanceX", -1, 1, 1, 2, Q("91.590799 mm")))
sketch15.addConstraint(Sketcher.Constraint("DistanceY", 0, 2, 0, 1, Q("0.357592 mm")))
sketch15.addConstraint(Sketcher.Constraint("DistanceY", -1, 1, 0, 2, Q("6.634439 mm")))
pad11 = doc.addObject("PartDesign::Pad", "Pad010")
body2.addObject(pad11)
pad11.Profile = sketch15
pad11.Length = 1
pad11.Reversed = True
body3 = doc.addObject("PartDesign::Body", "Body002")

sketch16 = doc.addObject("Sketcher::SketchObject", "Sketch015")
body3.addObject(sketch16)
sketch16.AttachmentSupport = (doc.getObject("XY_Plane002"), [""])
sketch16.MapMode = "FlatFace"
add_polygon(sketch16, [(83, 11.7), (83, 7), (91.6, 7), (91.6, 11.7)])
sketch16.addConstraint(Sketcher.Constraint("Vertical", 0))
sketch16.addConstraint(Sketcher.Constraint("Horizontal", 1))
sketch16.addConstraint(Sketcher.Constraint("Vertical", 2))
sketch16.addConstraint(Sketcher.Constraint("Horizontal", 3))
sketch16.addConstraint(Sketcher.Constraint("DistanceY", -1, 1, 0, 2, Q("7 mm")))
sketch16.addConstraint(Sketcher.Constraint("DistanceX", 1, 1, 1, 2, Q("8.547039 mm")))
sketch16.addConstraint(Sketcher.Constraint("DistanceY", 0, 2, 0, 1, Q("4.701429 mm")))
sketch16.addConstraint(Sketcher.Constraint("DistanceX", -1, 1, 1, 2, Q("91.590799 mm")))
pad12 = doc.addObject("PartDesign::Pad", "Pad011")
body3.addObject(pad12)
pad12.Profile = sketch16
pad12.Length = 1
pad12.Reversed = True

doc.recompute()
